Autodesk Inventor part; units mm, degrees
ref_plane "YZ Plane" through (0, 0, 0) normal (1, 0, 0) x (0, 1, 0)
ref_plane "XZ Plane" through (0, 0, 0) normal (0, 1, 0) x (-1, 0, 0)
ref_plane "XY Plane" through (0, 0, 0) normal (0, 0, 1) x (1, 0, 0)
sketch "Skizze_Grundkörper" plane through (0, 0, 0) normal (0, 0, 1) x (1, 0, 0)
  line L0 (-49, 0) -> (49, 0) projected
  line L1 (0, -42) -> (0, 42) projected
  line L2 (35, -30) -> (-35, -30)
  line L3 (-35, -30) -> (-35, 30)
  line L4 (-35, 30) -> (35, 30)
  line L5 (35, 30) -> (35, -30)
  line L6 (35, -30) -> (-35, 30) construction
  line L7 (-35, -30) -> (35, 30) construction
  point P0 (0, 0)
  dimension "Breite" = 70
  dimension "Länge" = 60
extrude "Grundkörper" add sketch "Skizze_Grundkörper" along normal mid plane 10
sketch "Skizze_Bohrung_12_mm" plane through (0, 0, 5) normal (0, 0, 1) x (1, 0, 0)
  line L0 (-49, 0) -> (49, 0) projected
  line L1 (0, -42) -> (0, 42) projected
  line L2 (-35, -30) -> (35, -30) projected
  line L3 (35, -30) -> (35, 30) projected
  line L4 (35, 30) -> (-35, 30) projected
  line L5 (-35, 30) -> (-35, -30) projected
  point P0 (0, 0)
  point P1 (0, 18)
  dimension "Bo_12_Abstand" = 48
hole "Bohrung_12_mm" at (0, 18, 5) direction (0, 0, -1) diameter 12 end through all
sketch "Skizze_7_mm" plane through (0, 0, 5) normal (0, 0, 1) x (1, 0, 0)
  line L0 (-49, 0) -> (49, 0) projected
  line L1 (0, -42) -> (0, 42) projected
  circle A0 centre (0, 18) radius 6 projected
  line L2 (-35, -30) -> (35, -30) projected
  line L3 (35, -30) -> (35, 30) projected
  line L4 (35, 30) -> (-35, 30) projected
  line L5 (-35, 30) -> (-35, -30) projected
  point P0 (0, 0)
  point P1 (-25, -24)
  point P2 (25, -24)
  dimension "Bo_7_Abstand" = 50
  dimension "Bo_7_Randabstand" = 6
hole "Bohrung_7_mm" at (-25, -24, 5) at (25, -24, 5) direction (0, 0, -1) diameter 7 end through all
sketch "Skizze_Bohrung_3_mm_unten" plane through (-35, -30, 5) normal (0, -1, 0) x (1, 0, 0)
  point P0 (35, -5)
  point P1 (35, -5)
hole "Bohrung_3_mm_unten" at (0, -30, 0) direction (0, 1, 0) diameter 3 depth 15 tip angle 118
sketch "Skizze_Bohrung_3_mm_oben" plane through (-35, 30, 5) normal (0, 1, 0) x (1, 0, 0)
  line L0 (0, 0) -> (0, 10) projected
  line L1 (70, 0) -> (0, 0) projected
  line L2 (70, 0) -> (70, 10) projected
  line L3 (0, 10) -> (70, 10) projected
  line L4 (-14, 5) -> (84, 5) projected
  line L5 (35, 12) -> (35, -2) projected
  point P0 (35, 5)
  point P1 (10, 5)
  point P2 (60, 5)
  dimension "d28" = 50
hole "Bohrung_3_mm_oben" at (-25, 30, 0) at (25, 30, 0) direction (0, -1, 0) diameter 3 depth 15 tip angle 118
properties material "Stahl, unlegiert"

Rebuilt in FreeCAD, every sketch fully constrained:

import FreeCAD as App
import Part
import Sketcher

V = App.Vector

doc = App.newDocument("Part")
params = doc.addObject("Spreadsheet::Sheet", "Params")
for row, (alias, value) in enumerate([
    ("sketch1_width", "70 mm"),
    ("sketch1_height", "60 mm"),
    ("pad1_length", "10 mm"),
    ("sketch2_diameter", "12 mm"),
    ("hole_diameter", "12 mm"),
    ("sketch3_diameter", "7 mm"),
    ("hole2_diameter", "7 mm"),
    ("sketch4_diameter", "3 mm"),
    ("hole3_diameter", "3 mm"),
    ("hole3_depth", "15 mm"),
    ("sketch5_diameter", "3 mm"),
    ("hole4_diameter", "3 mm"),
    ("hole4_depth", "15 mm"),
], start=1):
    params.set(f"A{row}", alias)
    params.set(f"B{row}", "=" + value)
    params.setAlias(f"B{row}", alias)

body = doc.addObject("PartDesign::Body", "Body")

# Sketch on XY plane
sketch1 = doc.addObject("Sketcher::SketchObject", "Sketch")
body.addObject(sketch1)
sketch1.AttachmentSupport = (doc.XY_Plane, [""])
sketch1.MapMode = "FlatFace"
sketch1.addGeometry([
    Part.LineSegment(V(-35, 30, 0), V(-35, -30, 0)),
    Part.LineSegment(V(-35, -30, 0), V(35, -30, 0)),
    Part.LineSegment(V(35, -30, 0), V(35, 30, 0)),
    Part.LineSegment(V(35, 30, 0), V(-35, 30, 0)),
], False)
sketch1.addConstraint([
    Sketcher.Constraint("Coincident", 0, 2, 1, 1),
    Sketcher.Constraint("Coincident", 1, 2, 2, 1),
    Sketcher.Constraint("Coincident", 2, 2, 3, 1),
    Sketcher.Constraint("Coincident", 3, 2, 0, 1),
    Sketcher.Constraint("Vertical", 0),
    Sketcher.Constraint("Horizontal", 1),
    Sketcher.Constraint("Vertical", 2),
    Sketcher.Constraint("Horizontal", 3),
    Sketcher.Constraint("Symmetric", 0, 2, 2, 2, -1, 1),
    Sketcher.Constraint("DistanceX", 1, 1, 1, 2, 70.0),
    Sketcher.Constraint("DistanceY", 0, 2, 0, 1, 60.0),
])
sketch1.setExpression("Constraints[9]", "Params.sketch1_width")
sketch1.setExpression("Constraints[10]", "Params.sketch1_height")
pad1 = doc.addObject("PartDesign::Pad", "Pad")
body.addObject(pad1)
pad1.Profile = sketch1
pad1.setExpression("Length", "Params.pad1_length")
pad1.Midplane = True

# Sketch on XY plane
sketch2 = doc.addObject("Sketcher::SketchObject", "Sketch001")
body.addObject(sketch2)
sketch2.AttachmentSupport = (doc.XY_Plane, [""])
sketch2.MapMode = "FlatFace"
sketch2.AttachmentOffset = App.Placement(V(0, 0, 5), App.Rotation())
sketch2.addGeometry(Part.Circle(V(0, 18, 0), V(0, 0, 1), 6), False)
sketch2.addConstraint([
    Sketcher.Constraint("PointOnObject", 0, 3, -2),
    Sketcher.Constraint("Diameter", 0, 12.0),
    Sketcher.Constraint("DistanceY", -1, 1, 0, 3, 18.0),
])
sketch2.setExpression("Constraints[1]", "Params.sketch2_diameter")
doc.recompute()
hole = doc.addObject("PartDesign::Hole", "Hole")
body.addObject(hole)
hole.Profile = sketch2
hole.ThreadType = "None"
hole.setExpression("Diameter", "Params.hole_diameter")
hole.DepthType = "ThroughAll"

# Sketch on XY plane
sketch3 = doc.addObject("Sketcher::SketchObject", "Sketch002")
body.addObject(sketch3)
sketch3.AttachmentSupport = (doc.XY_Plane, [""])
sketch3.MapMode = "FlatFace"
sketch3.AttachmentOffset = App.Placement(V(0, 0, 5), App.Rotation())
sketch3.addGeometry([
    Part.Circle(V(-25, -24, 0), V(0, 0, 1), 3.5),
    Part.Circle(V(25, -24, 0), V(0, 0, 1), 3.5),
], False)
sketch3.addConstraint([
    Sketcher.Constraint("Equal", 0, 1),
    Sketcher.Constraint("Symmetric", 0, 3, 1, 3, -2),
    Sketcher.Constraint("Diameter", 0, 7.0),
    Sketcher.Constraint("DistanceX", 0, 3, -1, 1, 25.0),
    Sketcher.Constraint("DistanceY", 0, 3, -1, 1, 24.0),
])
sketch3.setExpression("Constraints[2]", "Params.sketch3_diameter")
doc.recompute()
hole2 = doc.addObject("PartDesign::Hole", "Hole001")
body.addObject(hole2)
hole2.Profile = sketch3
hole2.ThreadType = "None"
hole2.setExpression("Diameter", "Params.hole2_diameter")
hole2.DepthType = "ThroughAll"

# Sketch on XZ plane
sketch4 = doc.addObject("Sketcher::SketchObject", "Sketch003")
body.addObject(sketch4)
sketch4.AttachmentSupport = (doc.XZ_Plane, [""])
sketch4.MapMode = "FlatFace"
sketch4.AttachmentOffset = App.Placement(V(0, 0, 30), App.Rotation())
sketch4.addGeometry(Part.Circle(V(0, 0, 0), V(0, 0, 1), 1.5), False)
sketch4.addConstraint([
    Sketcher.Constraint("Coincident", 0, 3, -1, 1),
    Sketcher.Constraint("Diameter", 0, 3.0),
])
sketch4.setExpression("Constraints[1]", "Params.sketch4_diameter")
doc.recompute()
hole3 = doc.addObject("PartDesign::Hole", "Hole002")
body.addObject(hole3)
hole3.Profile = sketch4
hole3.ThreadType = "None"
hole3.setExpression("Diameter", "Params.hole3_diameter")
hole3.DepthType = "Dimension"
hole3.setExpression("Depth", "Params.hole3_depth")
hole3.DrillPoint = "Angled"
hole3.DrillPointAngle = 118

# Sketch on XZ plane
sketch5 = doc.addObject("Sketcher::SketchObject", "Sketch004")
body.addObject(sketch5)
sketch5.AttachmentSupport = (doc.XZ_Plane, [""])
sketch5.MapMode = "FlatFace"
sketch5.AttachmentOffset = App.Placement(V(0, 0, -30), App.Rotation())
sketch5.addGeometry([
    Part.Circle(V(-25, 0, 0), V(0, 0, 1), 1.5),
    Part.Circle(V(25, 0, 0), V(0, 0, 1), 1.5),
], False)
sketch5.addConstraint([
    Sketcher.Constraint("Equal", 0, 1),
    Sketcher.Constraint("Symmetric", 0, 3, 1, 3, -1, 1),
    Sketcher.Constraint("PointOnObject", 0, 3, -1),
    Sketcher.Constraint("Diameter", 0, 3.0),
    Sketcher.Constraint("DistanceX", 0, 3, -1, 1, 25.0),
])
sketch5.setExpression("Constraints[3]", "Params.sketch5_diameter")
doc.recompute()
hole4 = doc.addObject("PartDesign::Hole", "Hole003")
body.addObject(hole4)
hole4.Profile = sketch5
hole4.ThreadType = "None"
hole4.setExpression("Diameter", "Params.hole4_diameter")
hole4.DepthType = "Dimension"
hole4.setExpression("Depth", "Params.hole4_depth")
hole4.DrillPoint = "Angled"
hole4.DrillPointAngle = 118
hole4.Reversed = True

doc.recompute()
